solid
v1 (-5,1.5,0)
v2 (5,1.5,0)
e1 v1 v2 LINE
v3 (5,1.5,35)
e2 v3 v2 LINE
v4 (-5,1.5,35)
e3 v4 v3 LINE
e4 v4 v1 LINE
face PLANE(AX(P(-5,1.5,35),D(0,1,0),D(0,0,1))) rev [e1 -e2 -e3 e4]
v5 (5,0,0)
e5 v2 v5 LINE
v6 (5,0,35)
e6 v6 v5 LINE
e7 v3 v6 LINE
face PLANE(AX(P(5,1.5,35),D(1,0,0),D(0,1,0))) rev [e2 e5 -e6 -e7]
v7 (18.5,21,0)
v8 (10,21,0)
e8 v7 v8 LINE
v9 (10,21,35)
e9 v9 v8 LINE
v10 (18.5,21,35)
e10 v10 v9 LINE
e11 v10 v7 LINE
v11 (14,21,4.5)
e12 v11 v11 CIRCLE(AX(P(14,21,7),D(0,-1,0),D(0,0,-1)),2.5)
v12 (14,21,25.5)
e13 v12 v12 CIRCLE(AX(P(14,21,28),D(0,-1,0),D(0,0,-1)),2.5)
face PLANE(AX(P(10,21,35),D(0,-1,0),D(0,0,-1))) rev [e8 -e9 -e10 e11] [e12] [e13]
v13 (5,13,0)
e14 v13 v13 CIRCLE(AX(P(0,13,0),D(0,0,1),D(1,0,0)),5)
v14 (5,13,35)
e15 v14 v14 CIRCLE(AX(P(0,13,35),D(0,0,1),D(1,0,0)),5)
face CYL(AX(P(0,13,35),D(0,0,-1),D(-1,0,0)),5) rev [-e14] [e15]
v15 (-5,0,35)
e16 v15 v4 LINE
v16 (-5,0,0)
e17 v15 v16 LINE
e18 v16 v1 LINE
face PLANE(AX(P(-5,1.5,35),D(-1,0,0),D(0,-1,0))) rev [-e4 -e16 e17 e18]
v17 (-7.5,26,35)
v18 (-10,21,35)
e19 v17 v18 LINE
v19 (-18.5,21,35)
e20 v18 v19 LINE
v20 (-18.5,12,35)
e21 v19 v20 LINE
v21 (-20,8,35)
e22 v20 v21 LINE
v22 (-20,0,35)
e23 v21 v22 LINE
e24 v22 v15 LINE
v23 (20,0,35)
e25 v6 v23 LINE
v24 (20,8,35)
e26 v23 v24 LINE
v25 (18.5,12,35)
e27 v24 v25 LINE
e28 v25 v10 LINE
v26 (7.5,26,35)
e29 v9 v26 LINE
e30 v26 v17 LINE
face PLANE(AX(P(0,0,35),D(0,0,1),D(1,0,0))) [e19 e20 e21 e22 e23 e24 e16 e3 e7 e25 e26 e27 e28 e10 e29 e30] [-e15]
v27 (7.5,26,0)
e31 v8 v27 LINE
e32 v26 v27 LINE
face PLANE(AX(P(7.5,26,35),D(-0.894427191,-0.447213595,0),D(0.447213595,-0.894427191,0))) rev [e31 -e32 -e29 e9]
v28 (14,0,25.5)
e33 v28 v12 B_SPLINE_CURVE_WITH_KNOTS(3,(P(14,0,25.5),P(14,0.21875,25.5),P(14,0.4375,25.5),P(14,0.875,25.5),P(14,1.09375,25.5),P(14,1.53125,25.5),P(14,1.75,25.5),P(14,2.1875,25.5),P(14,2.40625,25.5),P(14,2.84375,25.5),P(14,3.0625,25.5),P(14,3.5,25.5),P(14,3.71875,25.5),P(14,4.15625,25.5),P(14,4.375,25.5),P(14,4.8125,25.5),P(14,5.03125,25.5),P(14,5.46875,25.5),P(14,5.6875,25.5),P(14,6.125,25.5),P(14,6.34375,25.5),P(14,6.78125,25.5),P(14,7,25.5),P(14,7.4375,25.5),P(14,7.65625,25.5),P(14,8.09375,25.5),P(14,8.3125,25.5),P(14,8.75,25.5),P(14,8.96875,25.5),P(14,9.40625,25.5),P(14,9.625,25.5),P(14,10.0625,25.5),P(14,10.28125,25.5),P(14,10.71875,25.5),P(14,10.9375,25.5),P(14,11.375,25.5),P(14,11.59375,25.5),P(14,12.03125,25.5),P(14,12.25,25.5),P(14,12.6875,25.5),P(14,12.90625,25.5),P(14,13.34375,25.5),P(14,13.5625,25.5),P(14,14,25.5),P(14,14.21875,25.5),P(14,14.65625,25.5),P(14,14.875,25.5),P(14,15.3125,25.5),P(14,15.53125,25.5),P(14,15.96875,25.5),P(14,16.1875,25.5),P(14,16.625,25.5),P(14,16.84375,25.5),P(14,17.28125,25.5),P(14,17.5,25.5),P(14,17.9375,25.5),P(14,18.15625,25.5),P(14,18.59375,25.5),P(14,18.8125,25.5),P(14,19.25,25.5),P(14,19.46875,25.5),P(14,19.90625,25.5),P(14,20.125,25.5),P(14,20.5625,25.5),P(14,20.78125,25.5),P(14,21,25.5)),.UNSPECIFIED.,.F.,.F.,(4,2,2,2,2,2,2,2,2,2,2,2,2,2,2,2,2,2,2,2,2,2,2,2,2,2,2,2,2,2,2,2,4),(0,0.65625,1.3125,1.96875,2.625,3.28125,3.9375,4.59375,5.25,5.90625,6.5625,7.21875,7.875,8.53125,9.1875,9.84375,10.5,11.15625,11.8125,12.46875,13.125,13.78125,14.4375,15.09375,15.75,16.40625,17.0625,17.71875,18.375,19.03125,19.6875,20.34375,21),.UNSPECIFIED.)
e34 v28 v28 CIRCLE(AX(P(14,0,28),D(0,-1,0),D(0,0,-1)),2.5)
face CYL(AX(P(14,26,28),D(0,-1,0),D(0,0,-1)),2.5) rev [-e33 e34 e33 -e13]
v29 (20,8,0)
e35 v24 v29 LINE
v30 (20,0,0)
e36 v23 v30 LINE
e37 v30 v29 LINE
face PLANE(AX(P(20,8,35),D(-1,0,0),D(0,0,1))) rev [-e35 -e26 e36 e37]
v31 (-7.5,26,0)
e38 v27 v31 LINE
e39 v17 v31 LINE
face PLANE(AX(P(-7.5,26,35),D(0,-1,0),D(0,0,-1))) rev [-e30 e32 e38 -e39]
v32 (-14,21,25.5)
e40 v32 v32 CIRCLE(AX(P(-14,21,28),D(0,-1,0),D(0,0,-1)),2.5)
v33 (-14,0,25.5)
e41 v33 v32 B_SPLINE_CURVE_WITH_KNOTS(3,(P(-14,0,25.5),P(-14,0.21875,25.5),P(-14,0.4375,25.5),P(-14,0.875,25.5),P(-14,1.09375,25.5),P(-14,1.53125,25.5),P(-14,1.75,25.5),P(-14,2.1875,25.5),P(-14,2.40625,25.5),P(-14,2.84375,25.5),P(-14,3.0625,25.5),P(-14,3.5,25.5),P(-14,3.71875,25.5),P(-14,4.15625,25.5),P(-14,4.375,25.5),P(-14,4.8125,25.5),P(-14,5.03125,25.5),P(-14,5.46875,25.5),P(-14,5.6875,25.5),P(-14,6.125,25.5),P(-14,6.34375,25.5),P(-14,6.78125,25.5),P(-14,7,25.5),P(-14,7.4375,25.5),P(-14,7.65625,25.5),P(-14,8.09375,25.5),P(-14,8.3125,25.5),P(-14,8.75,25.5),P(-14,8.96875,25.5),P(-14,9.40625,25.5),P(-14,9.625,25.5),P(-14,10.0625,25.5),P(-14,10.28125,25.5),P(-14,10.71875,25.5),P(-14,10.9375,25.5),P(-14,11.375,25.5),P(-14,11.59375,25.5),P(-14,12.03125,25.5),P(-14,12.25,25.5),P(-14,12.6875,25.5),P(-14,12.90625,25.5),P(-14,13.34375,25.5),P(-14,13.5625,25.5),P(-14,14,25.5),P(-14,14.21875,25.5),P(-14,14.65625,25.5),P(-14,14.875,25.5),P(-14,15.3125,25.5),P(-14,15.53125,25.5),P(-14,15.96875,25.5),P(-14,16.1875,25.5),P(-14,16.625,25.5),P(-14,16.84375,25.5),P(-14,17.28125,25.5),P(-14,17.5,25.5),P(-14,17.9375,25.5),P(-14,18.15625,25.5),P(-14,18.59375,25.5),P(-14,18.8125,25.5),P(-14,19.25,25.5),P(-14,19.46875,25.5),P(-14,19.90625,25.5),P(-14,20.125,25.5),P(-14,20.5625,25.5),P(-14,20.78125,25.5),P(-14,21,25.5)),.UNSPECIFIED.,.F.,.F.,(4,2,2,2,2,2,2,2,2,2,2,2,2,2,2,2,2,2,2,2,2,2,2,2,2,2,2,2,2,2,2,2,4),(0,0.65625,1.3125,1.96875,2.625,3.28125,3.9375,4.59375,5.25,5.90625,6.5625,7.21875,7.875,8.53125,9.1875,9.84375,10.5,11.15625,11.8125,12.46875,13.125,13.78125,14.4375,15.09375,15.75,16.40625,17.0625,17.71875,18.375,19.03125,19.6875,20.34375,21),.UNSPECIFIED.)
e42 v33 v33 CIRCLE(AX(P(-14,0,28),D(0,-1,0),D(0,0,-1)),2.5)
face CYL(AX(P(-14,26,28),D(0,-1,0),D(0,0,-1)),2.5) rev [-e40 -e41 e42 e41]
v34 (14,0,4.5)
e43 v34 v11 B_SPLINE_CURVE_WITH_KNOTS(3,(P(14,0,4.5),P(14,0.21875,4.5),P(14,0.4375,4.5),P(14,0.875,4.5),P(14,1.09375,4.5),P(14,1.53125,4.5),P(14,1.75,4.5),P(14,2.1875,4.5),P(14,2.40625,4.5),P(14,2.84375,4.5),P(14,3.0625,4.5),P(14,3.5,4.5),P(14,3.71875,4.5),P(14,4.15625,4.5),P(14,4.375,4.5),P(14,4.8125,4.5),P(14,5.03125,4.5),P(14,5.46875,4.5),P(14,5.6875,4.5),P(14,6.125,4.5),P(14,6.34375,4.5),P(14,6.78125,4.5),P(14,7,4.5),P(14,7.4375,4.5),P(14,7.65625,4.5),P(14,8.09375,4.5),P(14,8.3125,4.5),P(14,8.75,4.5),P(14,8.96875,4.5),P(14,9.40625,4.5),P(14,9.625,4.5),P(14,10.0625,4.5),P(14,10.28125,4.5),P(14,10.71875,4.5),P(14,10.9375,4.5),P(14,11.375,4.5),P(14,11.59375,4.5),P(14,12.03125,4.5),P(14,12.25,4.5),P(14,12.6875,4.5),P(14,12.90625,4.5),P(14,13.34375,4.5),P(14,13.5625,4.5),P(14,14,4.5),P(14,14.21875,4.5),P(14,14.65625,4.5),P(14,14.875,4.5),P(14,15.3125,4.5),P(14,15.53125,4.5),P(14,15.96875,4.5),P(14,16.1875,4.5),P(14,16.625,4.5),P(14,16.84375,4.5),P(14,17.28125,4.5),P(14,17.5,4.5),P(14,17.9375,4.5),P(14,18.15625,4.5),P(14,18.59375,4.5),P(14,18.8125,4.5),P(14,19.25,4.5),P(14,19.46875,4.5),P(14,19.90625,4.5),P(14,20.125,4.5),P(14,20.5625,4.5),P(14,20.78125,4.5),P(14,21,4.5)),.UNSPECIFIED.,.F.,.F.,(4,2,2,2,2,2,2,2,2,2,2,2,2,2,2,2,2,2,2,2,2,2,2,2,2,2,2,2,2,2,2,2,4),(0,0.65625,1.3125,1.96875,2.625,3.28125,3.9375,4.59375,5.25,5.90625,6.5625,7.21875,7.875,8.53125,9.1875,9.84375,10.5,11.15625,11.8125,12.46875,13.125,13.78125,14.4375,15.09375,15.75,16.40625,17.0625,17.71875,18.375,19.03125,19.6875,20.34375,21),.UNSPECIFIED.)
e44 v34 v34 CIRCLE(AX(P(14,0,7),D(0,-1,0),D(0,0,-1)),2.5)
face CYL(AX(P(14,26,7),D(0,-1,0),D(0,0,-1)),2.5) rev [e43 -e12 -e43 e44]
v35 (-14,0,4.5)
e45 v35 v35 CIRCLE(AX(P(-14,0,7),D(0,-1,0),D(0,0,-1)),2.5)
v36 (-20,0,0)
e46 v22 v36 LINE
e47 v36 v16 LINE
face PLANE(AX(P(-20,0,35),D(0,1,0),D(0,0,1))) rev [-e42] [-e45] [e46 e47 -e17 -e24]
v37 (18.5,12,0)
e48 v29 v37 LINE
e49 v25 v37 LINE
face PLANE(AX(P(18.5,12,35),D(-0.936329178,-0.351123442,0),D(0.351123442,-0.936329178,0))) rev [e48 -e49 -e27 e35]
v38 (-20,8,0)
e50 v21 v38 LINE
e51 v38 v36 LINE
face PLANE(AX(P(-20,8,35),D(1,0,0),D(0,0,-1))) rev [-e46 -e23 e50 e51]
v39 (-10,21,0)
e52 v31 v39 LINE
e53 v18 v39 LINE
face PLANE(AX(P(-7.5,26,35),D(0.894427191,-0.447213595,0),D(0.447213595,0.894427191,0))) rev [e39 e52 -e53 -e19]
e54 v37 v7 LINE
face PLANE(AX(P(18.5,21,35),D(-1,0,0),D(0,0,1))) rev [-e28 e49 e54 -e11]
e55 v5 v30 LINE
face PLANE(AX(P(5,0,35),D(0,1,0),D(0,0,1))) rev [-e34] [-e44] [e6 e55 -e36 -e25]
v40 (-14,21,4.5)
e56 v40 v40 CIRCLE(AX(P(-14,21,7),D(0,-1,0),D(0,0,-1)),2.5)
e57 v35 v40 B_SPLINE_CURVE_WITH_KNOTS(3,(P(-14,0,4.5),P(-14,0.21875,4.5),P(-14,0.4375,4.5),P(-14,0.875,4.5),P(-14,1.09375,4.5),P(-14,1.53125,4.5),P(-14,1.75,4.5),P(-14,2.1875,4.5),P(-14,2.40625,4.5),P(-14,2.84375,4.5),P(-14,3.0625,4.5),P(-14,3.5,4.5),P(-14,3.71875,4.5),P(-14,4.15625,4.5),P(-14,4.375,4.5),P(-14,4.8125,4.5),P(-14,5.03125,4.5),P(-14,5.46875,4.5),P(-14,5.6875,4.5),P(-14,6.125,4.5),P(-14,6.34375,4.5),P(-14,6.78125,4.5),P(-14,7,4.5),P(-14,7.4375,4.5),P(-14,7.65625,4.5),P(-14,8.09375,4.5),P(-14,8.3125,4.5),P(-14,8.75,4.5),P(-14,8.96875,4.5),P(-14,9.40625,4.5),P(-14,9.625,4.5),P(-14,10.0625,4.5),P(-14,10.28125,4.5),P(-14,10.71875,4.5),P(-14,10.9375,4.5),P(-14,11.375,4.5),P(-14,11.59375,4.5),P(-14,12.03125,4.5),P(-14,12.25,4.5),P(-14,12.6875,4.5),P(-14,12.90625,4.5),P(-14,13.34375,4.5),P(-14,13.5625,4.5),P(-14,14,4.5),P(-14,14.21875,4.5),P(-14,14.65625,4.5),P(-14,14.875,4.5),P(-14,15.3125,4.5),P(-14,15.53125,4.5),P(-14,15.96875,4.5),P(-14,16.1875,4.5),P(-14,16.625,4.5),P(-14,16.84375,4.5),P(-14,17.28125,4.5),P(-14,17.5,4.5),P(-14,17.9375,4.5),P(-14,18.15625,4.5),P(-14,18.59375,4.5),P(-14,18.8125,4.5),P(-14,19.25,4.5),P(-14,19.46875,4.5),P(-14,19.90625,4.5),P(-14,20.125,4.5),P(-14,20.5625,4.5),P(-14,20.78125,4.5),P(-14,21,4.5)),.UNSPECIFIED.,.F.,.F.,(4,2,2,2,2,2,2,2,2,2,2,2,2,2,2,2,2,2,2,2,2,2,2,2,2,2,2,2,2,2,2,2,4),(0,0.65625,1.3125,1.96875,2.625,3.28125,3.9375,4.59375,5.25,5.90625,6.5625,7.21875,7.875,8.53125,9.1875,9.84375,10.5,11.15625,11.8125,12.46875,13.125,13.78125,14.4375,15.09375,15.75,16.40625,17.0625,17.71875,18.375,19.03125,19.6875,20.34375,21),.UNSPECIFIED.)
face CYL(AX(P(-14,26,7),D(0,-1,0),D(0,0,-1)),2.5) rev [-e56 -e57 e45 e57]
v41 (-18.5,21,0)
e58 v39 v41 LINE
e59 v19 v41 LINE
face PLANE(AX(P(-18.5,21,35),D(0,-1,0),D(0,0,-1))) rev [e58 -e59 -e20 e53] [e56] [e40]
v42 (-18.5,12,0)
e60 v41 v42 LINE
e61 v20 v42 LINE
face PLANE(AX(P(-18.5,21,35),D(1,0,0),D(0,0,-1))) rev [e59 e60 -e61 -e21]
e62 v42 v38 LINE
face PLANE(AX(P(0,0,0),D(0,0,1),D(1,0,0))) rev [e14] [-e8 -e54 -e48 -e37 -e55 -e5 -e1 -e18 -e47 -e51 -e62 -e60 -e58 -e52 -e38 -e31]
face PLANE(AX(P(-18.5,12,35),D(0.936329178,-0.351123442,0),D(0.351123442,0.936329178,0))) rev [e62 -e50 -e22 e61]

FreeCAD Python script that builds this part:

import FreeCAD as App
import Part
import Sketcher
Q = App.Units.Quantity


def add_polygon(sketch, points):
    """Adds a closed chain of lines whose ends are joined by coincident constraints."""
    first, n = sketch.GeometryCount, len(points)
    for a, b in zip(points, points[1:] + points[:1]):
        sketch.addGeometry(Part.LineSegment(App.Vector(*a, 0), App.Vector(*b, 0)), False)
    for i in range(n):
        sketch.addConstraint(Sketcher.Constraint("Coincident", first + i, 2, first + (i + 1) % n, 1))

doc = App.newDocument("Part")
body = doc.addObject("PartDesign::Body", "Body")

sketch1 = body.newObject("Sketcher::SketchObject", "Sketch")
sketch1.AttachmentSupport = (doc.getObject("XY_Plane"), [""])
sketch1.MapMode = "FlatFace"
add_polygon(sketch1, [(-10, 21), (-18.5, 21), (-18.5, 12), (-20, 8), (-20, 0), (-5, 0), (-5, 1.5), (5, 1.5), (5, 0), (20, 0), (20, 8), (18.5, 12), (18.5, 21), (10, 21), (7.5, 26), (-7.5, 26)])
sketch1.addGeometry(Part.Circle(App.Vector(0, 13, 0), App.Vector(0, 0, 1), 5), False)
sketch1.addConstraint([
    Sketcher.Constraint("Horizontal", 0),
    Sketcher.Constraint("Vertical", 1),
    Sketcher.Constraint("Vertical", 3),
    Sketcher.Constraint("Horizontal", 4),
    Sketcher.Constraint("Vertical", 5),
    Sketcher.Constraint("Horizontal", 6),
    Sketcher.Constraint("Vertical", 7),
    Sketcher.Constraint("Horizontal", 8),
    Sketcher.Constraint("Vertical", 9),
    Sketcher.Constraint("Vertical", 11),
    Sketcher.Constraint("Horizontal", 12),
    Sketcher.Constraint("Horizontal", 14),
    Sketcher.Constraint("Symmetric", 4, 2, 7, 2, -1, 1),
    Sketcher.Constraint("Symmetric", 3, 2, 8, 2, -2),
    Sketcher.Constraint("Symmetric", 1, 2, 10, 2, -2),
    Sketcher.Constraint("Symmetric", 12, 2, 15, 2, -2),
    Sketcher.Constraint("PointOnObject", 16, 3, -2),
    Sketcher.Constraint("Horizontal", 2, 2, 9, 2),
    Sketcher.Constraint("Equal", 8, 14),
    Sketcher.Constraint("Equal", 13, 15),
    Sketcher.Constraint("Diameter", 16, Q("10 mm")),
    Sketcher.Constraint("DistanceX", 4, 1, 4, 2, Q("15 mm")),
    Sketcher.Constraint("DistanceX", 6, 1, 6, 2, Q("10 mm")),
    Sketcher.Constraint("DistanceY", 1, 2, 1, 1, Q("9 mm")),
    Sketcher.Constraint("DistanceY", 3, 2, 3, 1, Q("8 mm")),
    Sketcher.Constraint("DistanceX", 0, 2, 0, 1, Q("8.5 mm")),
    Sketcher.Constraint("DistanceY", 5, 1, 5, 2, Q("1.5 mm")),
    Sketcher.Constraint("DistanceY", -1, 1, 16, 3, Q("13 mm")),
    Sketcher.Constraint("DistanceY", -1, 1, 0, 2, Q("21 mm")),
    Sketcher.Constraint("DistanceX", -1, 1, 12, 2, Q("10 mm")),
    Sketcher.Constraint("DistanceY", -1, 1, 13, 2, Q("26 mm")),
])
pad1 = body.newObject("PartDesign::Pad", "Pad")
pad1.Profile = sketch1
pad1.Length = 35

sketch2 = body.newObject("Sketcher::SketchObject", "Sketch001")
sketch2.AttachmentSupport = (doc.getObject("XZ_Plane"), [""])
sketch2.MapMode = "FlatFace"
sketch2.addGeometry([
    Part.Circle(App.Vector(-14, 28, 0), App.Vector(0, 0, 1), 2.5),
    Part.Circle(App.Vector(14, 28, 0), App.Vector(0, 0, 1), 2.5),
    Part.Circle(App.Vector(14, 7, 0), App.Vector(0, 0, 1), 2.5),
    Part.Circle(App.Vector(-14, 7, 0), App.Vector(0, 0, 1), 2.5),
], False)
sketch2.addConstraint([
    Sketcher.Constraint("Equal", 0, 1),
    Sketcher.Constraint("Equal", 1, 2),
    Sketcher.Constraint("Equal", 2, 3),
    Sketcher.Constraint("Symmetric", 0, 3, 1, 3, -2),
    Sketcher.Constraint("Symmetric", 2, 3, 3, 3, -2),
    Sketcher.Constraint("Vertical", 1, 3, 2, 3),
    Sketcher.Constraint("Diameter", 0, Q("5 mm")),
    Sketcher.Constraint("DistanceX", 0, 3, -1, 1, Q("14 mm")),
    Sketcher.Constraint("DistanceY", -1, 1, 0, 3, Q("28 mm")),
    Sketcher.Constraint("DistanceY", -1, 1, 2, 3, Q("7 mm")),
])
pocket1 = body.newObject("PartDesign::Pocket", "Pocket")
pocket1.Profile = sketch2
pocket1.Type = "ThroughAll"

doc.recompute()
